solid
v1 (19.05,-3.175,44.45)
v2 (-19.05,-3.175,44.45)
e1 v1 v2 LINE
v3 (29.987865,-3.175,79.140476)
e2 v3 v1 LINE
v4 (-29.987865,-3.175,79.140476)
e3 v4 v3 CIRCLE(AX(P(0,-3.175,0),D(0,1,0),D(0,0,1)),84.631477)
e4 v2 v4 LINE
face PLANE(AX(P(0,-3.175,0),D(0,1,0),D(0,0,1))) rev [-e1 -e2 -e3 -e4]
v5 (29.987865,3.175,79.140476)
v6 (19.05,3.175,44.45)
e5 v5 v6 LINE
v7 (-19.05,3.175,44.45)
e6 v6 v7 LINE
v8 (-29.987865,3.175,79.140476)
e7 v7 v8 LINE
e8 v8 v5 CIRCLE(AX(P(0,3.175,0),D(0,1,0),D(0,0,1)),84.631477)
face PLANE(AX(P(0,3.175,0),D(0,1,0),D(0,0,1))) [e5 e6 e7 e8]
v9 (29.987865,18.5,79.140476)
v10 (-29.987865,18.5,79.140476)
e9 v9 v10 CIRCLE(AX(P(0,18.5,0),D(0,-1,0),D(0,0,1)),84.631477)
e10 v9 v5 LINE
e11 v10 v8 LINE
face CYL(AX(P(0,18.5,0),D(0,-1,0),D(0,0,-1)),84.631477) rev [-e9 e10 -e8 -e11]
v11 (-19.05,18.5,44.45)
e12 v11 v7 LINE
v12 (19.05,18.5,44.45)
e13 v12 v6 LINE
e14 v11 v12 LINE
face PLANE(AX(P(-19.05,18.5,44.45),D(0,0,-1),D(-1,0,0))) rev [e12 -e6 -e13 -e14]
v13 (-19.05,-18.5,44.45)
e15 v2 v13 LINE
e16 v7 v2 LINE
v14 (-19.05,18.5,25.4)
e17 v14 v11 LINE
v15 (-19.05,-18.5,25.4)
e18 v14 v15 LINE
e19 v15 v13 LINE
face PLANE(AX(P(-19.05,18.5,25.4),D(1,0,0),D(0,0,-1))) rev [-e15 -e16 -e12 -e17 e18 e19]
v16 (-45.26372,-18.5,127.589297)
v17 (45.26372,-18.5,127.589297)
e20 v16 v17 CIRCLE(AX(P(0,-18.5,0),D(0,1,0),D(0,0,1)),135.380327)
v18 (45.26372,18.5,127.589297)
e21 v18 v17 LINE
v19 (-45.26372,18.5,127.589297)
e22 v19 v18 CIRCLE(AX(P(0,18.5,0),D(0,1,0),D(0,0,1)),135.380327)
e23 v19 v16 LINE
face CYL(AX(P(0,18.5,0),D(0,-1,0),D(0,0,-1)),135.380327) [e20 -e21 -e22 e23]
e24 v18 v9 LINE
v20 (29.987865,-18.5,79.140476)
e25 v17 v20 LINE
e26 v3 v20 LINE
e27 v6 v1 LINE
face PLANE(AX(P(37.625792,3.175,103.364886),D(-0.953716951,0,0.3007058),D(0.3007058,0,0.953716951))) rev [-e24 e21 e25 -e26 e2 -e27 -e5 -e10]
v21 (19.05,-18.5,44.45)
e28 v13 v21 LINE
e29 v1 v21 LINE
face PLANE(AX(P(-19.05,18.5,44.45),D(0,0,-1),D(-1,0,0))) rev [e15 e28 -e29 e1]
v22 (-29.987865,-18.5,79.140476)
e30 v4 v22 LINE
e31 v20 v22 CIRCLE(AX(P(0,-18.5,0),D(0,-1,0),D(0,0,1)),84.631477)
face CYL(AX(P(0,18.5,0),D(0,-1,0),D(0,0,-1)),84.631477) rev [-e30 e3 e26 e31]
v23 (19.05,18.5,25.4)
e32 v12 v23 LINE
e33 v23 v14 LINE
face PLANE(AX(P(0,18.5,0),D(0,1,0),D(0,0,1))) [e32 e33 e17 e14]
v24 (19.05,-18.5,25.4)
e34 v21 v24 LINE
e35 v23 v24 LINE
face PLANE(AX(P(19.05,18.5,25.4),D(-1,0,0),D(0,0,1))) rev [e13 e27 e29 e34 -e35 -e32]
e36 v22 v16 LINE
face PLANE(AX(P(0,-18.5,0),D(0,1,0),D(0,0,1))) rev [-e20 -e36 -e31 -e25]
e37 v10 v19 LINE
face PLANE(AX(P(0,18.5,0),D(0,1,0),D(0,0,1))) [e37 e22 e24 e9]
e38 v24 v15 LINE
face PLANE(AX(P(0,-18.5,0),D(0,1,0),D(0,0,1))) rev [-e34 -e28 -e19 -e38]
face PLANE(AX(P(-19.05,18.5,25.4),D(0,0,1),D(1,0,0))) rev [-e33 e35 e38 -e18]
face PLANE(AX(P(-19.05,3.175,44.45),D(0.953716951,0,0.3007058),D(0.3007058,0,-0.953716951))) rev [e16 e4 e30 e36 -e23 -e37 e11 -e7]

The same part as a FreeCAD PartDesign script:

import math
import FreeCAD as App
import Part
import Sketcher
from FreeCAD import Vector
Q = App.Units.Quantity

doc = App.newDocument("Part")
body = doc.addObject("PartDesign::Body", "Body")

# Sketch on XZ plane
sketch1 = doc.addObject("Sketcher::SketchObject", "Sketch")
body.addObject(sketch1)
sketch1.AttachmentSupport = (doc.XZ_Plane, [""])
sketch1.MapMode = "FlatFace"
sketch1.addGeometry([
    Part.LineSegment(Vector(-19, 25, 0), Vector(-19, 44, 0)),
    Part.LineSegment(Vector(-19, 44, 0), Vector(19, 44, 0)),
    Part.LineSegment(Vector(19, 44, 0), Vector(19, 25, 0)),
    Part.LineSegment(Vector(19, 25, 0), Vector(-19, 25, 0)),
], False)
sketch1.addConstraint([
    Sketcher.Constraint("Coincident", 0, 2, 1, 1),
    Sketcher.Constraint("Coincident", 1, 2, 2, 1),
    Sketcher.Constraint("Coincident", 2, 2, 3, 1),
    Sketcher.Constraint("Coincident", 3, 2, 0, 1),
    Sketcher.Constraint("Vertical", 0),
    Sketcher.Constraint("Horizontal", 1),
    Sketcher.Constraint("Vertical", 2),
    Sketcher.Constraint("Horizontal", 3),
    Sketcher.Constraint("DistanceX", 1, 1, 1, 2, Q("1.5 in")),
    Sketcher.Constraint("DistanceY", -1, 1, 2, 2, Q("1 in")),
    Sketcher.Constraint("DistanceY", 0, 1, 0, 2, Q("0.75 in")),
    Sketcher.Constraint("DistanceX", 0, 2, -1, 1, Q("0.75 in")),
])
pad1 = doc.addObject("PartDesign::Pad", "Pad")
body.addObject(pad1)
pad1.Profile = sketch1
pad1.Length = 37
pad1.Midplane = True

# Sketch on XZ plane
sketch2 = doc.addObject("Sketcher::SketchObject", "Sketch001")
body.addObject(sketch2)
sketch2.AttachmentSupport = (doc.XZ_Plane, [""])
sketch2.MapMode = "FlatFace"
sketch2.addGeometry([
    Part.LineSegment(Vector(-19, 44, 0), Vector(-38, 103, 0)),
    Part.ArcOfCircle(Part.Circle(Vector(0, 0, 0), Vector(0, 0, 1), 110), math.radians(70), math.radians(110)),
    Part.LineSegment(Vector(38, 103, 0), Vector(19, 44, 0)),
    Part.LineSegment(Vector(19, 44, 0), Vector(-19, 44, 0)),
], False)
sketch2.addConstraint([
    Sketcher.Constraint("Coincident", 0, 2, 1, 2),
    Sketcher.Constraint("Coincident", 1, 1, 2, 1),
    Sketcher.Constraint("Coincident", 2, 2, 3, 1),
    Sketcher.Constraint("Coincident", 3, 2, 0, 1),
    Sketcher.Constraint("Horizontal", 3),
    Sketcher.Constraint("Coincident", 1, 3, -1, 1),
    Sketcher.Constraint("Horizontal", 0, 2, 1, 1),
    Sketcher.Constraint("Equal", 0, 2),
    Sketcher.Constraint("DistanceX", 3, 2, 3, 1, Q("1.5 in")),
    Sketcher.Constraint("Angle", 0, Q("107.5 deg")),
    Sketcher.Constraint("DistanceY", -1, 1, 2, 2, Q("1.75 in")),
    Sketcher.Constraint("Radius", 1, Q("110 mm")),
])
pad2 = doc.addObject("PartDesign::Pad", "Pad001")
body.addObject(pad2)
pad2.Profile = sketch2
pad2.Length = Q("0.25 in")
pad2.Midplane = True

# Sketch on XZ plane
sketch3 = doc.addObject("Sketcher::SketchObject", "Sketch002")
body.addObject(sketch3)
sketch3.AttachmentSupport = (doc.XZ_Plane, [""])
sketch3.MapMode = "FlatFace"
sketch3.addGeometry([
    Part.LineSegment(Vector(-30, 79, 0), Vector(-45, 128, 0)),
    Part.ArcOfCircle(Part.Circle(Vector(0, 0, 0), Vector(0, 0, 1), 135), math.radians(70), math.radians(110)),
    Part.LineSegment(Vector(45, 128, 0), Vector(30, 79, 0)),
    Part.ArcOfCircle(Part.Circle(Vector(0, 0, 0), Vector(0, 0, 1), 85), math.radians(69), math.radians(111)),
], False)
sketch3.addConstraint([
    Sketcher.Constraint("Coincident", 0, 2, 1, 2),
    Sketcher.Constraint("Coincident", 1, 1, 2, 1),
    Sketcher.Constraint("Coincident", 2, 2, 3, 1),
    Sketcher.Constraint("Coincident", 3, 2, 0, 1),
    Sketcher.Constraint("Coincident", 1, 3, -1, 1),
    Sketcher.Constraint("Coincident", 3, 3, -1, 1),
    Sketcher.Constraint("Horizontal", 0, 2, 1, 1),
    Sketcher.Constraint("Horizontal", 2, 2, 3, 2),
    Sketcher.Constraint("Distance", 0, Q("2 in")),
    Sketcher.Constraint("Angle", 0, Q("107.5 deg")),
    Sketcher.Constraint("Radius", 1, Q("135.380327 mm")),
    Sketcher.Constraint("Radius", 3, Q("84.631477 mm")),
])
pad3 = doc.addObject("PartDesign::Pad", "Pad002")
body.addObject(pad3)
pad3.Profile = sketch3
pad3.Length = 37
pad3.Midplane = True

doc.recompute()
